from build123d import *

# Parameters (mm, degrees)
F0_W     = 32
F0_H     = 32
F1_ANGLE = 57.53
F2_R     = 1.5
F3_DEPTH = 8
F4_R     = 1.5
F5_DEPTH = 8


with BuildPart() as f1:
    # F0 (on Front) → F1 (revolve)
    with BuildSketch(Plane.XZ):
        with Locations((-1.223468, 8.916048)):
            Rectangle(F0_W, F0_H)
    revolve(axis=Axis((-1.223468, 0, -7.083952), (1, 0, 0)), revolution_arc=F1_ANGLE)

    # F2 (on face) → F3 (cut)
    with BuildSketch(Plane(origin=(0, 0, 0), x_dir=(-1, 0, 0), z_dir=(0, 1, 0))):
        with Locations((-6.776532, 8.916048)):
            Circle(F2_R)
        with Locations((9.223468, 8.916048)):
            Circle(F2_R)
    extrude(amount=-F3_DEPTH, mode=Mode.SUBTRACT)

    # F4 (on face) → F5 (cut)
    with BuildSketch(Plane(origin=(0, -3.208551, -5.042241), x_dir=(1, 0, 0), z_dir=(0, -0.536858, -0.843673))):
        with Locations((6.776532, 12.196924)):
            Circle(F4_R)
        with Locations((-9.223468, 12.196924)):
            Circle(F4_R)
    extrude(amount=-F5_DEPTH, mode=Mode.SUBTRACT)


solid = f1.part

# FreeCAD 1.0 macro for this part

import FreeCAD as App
import Part
import Sketcher


def add_polygon(sketch, points):
    """Adds a closed chain of lines whose ends are joined by coincident constraints."""
    first, n = sketch.GeometryCount, len(points)
    for a, b in zip(points, points[1:] + points[:1]):
        sketch.addGeometry(Part.LineSegment(App.Vector(*a, 0), App.Vector(*b, 0)), False)
    for i in range(n):
        sketch.addConstraint(Sketcher.Constraint("Coincident", first + i, 2, first + (i + 1) % n, 1))

doc = App.newDocument("Part")
body = doc.addObject("PartDesign::Body", "Body")

# Sketch on XZ plane
sketch1 = doc.addObject("Sketcher::SketchObject", "Sketch")
body.addObject(sketch1)
sketch1.AttachmentSupport = (doc.XZ_Plane, [""])
sketch1.MapMode = "FlatFace"
add_polygon(sketch1, [(-17, 25), (-17, -7), (15, -7), (15, 25)])  # lines 0-3
sketch1.addGeometry(Part.LineSegment(App.Vector(-17, -7, 0), App.Vector(15, -7, 0)), True)  # axis
sketch1.addConstraint(Sketcher.Constraint("Vertical", 0))
sketch1.addConstraint(Sketcher.Constraint("Horizontal", 1))
sketch1.addConstraint(Sketcher.Constraint("Vertical", 2))
sketch1.addConstraint(Sketcher.Constraint("Horizontal", 3))
sketch1.addConstraint(Sketcher.Constraint("Horizontal", 4))
sketch1.addConstraint(Sketcher.Constraint("Coincident", 4, 1, 0, 2))
sketch1.addConstraint(Sketcher.Constraint("Vertical", 2, 2, 4, 2))
sketch1.addConstraint(Sketcher.Constraint("Equal", 4, 0))
sketch1.addConstraint(Sketcher.Constraint("DistanceX", 1, 1, 1, 2, 32.0))
sketch1.addConstraint(Sketcher.Constraint("DistanceX", 0, 2, -1, 1, 17.223468))
sketch1.addConstraint(Sketcher.Constraint("DistanceY", -1, 1, 2, 2, 24.916048))
revolution = doc.addObject("PartDesign::Revolution", "Revolution")
body.addObject(revolution)
revolution.Profile = sketch1
revolution.ReferenceAxis = (sketch1, ["Axis0"])
revolution.Angle = 57.53

# Sketch on XZ plane
sketch2 = doc.addObject("Sketcher::SketchObject", "Sketch001")
body.addObject(sketch2)
sketch2.AttachmentSupport = (doc.XZ_Plane, [""])
sketch2.MapMode = "FlatFace"
sketch2.addGeometry(Part.Circle(App.Vector(6.8, 8.9, 0), App.Vector(0, 0, 1), 1.5), False)
sketch2.addGeometry(Part.Circle(App.Vector(-9.2, 8.9, 0), App.Vector(0, 0, 1), 1.5), False)
sketch2.addConstraint(Sketcher.Constraint("Equal", 0, 1))
sketch2.addConstraint(Sketcher.Constraint("Horizontal", 0, 3, 1, 3))
sketch2.addConstraint(Sketcher.Constraint("Diameter", 0, 3.0))
sketch2.addConstraint(Sketcher.Constraint("DistanceX", 1, 3, 0, 3, 16.0))
sketch2.addConstraint(Sketcher.Constraint("DistanceX", -1, 1, 0, 3, 6.776532))
sketch2.addConstraint(Sketcher.Constraint("DistanceY", -1, 1, 0, 3, 8.916048))
pocket1 = doc.addObject("PartDesign::Pocket", "Pocket")
body.addObject(pocket1)
pocket1.Profile = sketch2
pocket1.Length = 8
pocket1.Reversed = True

# Sketch on an angled plane
sketch3 = doc.addObject("Sketcher::SketchObject", "Sketch002")
body.addObject(sketch3)
sketch3.Placement = App.Placement(App.Vector(0, -3.208551, -5.042241), App.Rotation(App.Vector(1, 0, 0), App.Vector(0, -0.843672729, 0.536857827), App.Vector(0, -0.536857827, -0.843672729), "ZXY"))
sketch3.addGeometry(Part.Circle(App.Vector(6.8, 12.2, 0), App.Vector(0, 0, 1), 1.5), False)
sketch3.addGeometry(Part.Circle(App.Vector(-9.2, 12.2, 0), App.Vector(0, 0, 1), 1.5), False)
sketch3.addConstraint(Sketcher.Constraint("Equal", 0, 1))
sketch3.addConstraint(Sketcher.Constraint("Horizontal", 0, 3, 1, 3))
sketch3.addConstraint(Sketcher.Constraint("Diameter", 0, 3.0))
sketch3.addConstraint(Sketcher.Constraint("DistanceX", 1, 3, 0, 3, 16.0))
sketch3.addConstraint(Sketcher.Constraint("DistanceX", -1, 1, 0, 3, 6.776532))
sketch3.addConstraint(Sketcher.Constraint("DistanceY", -1, 1, 0, 3, 12.196924))
pocket2 = doc.addObject("PartDesign::Pocket", "Pocket001")
body.addObject(pocket2)
pocket2.Profile = sketch3
pocket2.Length = 8

doc.recompute()
